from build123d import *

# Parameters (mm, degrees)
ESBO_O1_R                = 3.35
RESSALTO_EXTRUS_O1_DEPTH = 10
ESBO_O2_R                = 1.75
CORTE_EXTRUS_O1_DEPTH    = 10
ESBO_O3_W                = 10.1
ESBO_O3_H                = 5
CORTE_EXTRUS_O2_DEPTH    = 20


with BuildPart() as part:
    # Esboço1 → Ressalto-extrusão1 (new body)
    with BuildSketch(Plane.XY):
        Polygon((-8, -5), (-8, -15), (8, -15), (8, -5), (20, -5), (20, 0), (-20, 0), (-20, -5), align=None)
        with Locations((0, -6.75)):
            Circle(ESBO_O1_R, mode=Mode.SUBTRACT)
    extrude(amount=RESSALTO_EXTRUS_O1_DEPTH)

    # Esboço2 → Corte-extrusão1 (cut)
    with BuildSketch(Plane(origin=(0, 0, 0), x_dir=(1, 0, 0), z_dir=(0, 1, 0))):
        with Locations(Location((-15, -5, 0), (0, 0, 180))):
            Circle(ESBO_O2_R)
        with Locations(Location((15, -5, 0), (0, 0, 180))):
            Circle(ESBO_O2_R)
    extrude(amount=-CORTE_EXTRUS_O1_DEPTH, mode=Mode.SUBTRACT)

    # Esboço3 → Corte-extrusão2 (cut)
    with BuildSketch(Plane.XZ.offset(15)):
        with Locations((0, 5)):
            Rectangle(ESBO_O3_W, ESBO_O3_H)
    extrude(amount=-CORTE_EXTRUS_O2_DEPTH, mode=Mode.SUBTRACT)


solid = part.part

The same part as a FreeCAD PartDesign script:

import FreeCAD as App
import Part
import Sketcher

V = App.Vector


def add_polygon(sketch, points):
    """Adds a closed chain of lines whose ends are joined by coincident constraints."""
    first, n = sketch.GeometryCount, len(points)
    for a, b in zip(points, points[1:] + points[:1]):
        sketch.addGeometry(Part.LineSegment(App.Vector(*a, 0), App.Vector(*b, 0)), False)
    for i in range(n):
        sketch.addConstraint(Sketcher.Constraint("Coincident", first + i, 2, first + (i + 1) % n, 1))

doc = App.newDocument("Part")
body = doc.addObject("PartDesign::Body", "Body")

sketch1 = body.newObject("Sketcher::SketchObject", "Sketch")
sketch1.AttachmentSupport = (doc.getObject("XY_Plane"), [""])
sketch1.MapMode = "FlatFace"
add_polygon(sketch1, [(-8, -5), (-8, -15), (8, -15), (8, -5), (20, -5), (20, 0), (-20, 0), (-20, -5)])
sketch1.addGeometry(Part.Circle(V(0, -6.8, 0), V(0, 0, 1), 3.4), False)
sketch1.addConstraint([
    Sketcher.Constraint("Vertical", 0),
    Sketcher.Constraint("Horizontal", 1),
    Sketcher.Constraint("Vertical", 2),
    Sketcher.Constraint("Horizontal", 3),
    Sketcher.Constraint("Vertical", 4),
    Sketcher.Constraint("Horizontal", 5),
    Sketcher.Constraint("Vertical", 6),
    Sketcher.Constraint("Horizontal", 7),
    Sketcher.Constraint("Symmetric", 4, 2, 5, 2, -1, 1),
    Sketcher.Constraint("Symmetric", 2, 2, 7, 2, -2),
    Sketcher.Constraint("PointOnObject", 8, 3, -2),
    Sketcher.Constraint("Diameter", 8, 6.7),
    Sketcher.Constraint("DistanceX", 1, 1, 1, 2, 16.0),
    Sketcher.Constraint("DistanceX", 3, 1, 3, 2, 12.0),
    Sketcher.Constraint("DistanceY", 0, 2, 0, 1, 10.0),
    Sketcher.Constraint("DistanceY", 4, 1, 4, 2, 5.0),
    Sketcher.Constraint("DistanceY", 8, 3, -1, 1, 6.75),
])
pad1 = body.newObject("PartDesign::Pad", "Pad")
pad1.Profile = sketch1
pad1.Length = 10

sketch2 = body.newObject("Sketcher::SketchObject", "Sketch001")
sketch2.AttachmentSupport = (doc.getObject("XZ_Plane"), [""])
sketch2.MapMode = "FlatFace"
sketch2.addGeometry([
    Part.Circle(V(-15, 5, 0), V(0, 0, 1), 1.8),
    Part.Circle(V(15, 5, 0), V(0, 0, 1), 1.8),
], False)
sketch2.addConstraint([
    Sketcher.Constraint("Equal", 0, 1),
    Sketcher.Constraint("Symmetric", 0, 3, 1, 3, -2),
    Sketcher.Constraint("Diameter", 0, 3.5),
    Sketcher.Constraint("DistanceX", 0, 3, -1, 1, 15.0),
    Sketcher.Constraint("DistanceY", -1, 1, 0, 3, 5.0),
])
pocket1 = body.newObject("PartDesign::Pocket", "Pocket")
pocket1.Profile = sketch2
pocket1.Length = 10
pocket1.Reversed = True

sketch3 = body.newObject("Sketcher::SketchObject", "Sketch002")
sketch3.AttachmentSupport = (doc.getObject("XZ_Plane"), [""])
sketch3.MapMode = "FlatFace"
sketch3.AttachmentOffset = App.Placement(V(0, 0, 15), App.Rotation())
add_polygon(sketch3, [(-5, 8), (-5, 2), (5, 2), (5, 8)])
sketch3.addConstraint([
    Sketcher.Constraint("Vertical", 0),
    Sketcher.Constraint("Horizontal", 1),
    Sketcher.Constraint("Vertical", 2),
    Sketcher.Constraint("Horizontal", 3),
    Sketcher.Constraint("DistanceY", 0, 2, 0, 1, 5.0),
    Sketcher.Constraint("DistanceX", 1, 1, 1, 2, 10.1),
    Sketcher.Constraint("DistanceY", -1, 1, 0, 2, 2.5),
    Sketcher.Constraint("DistanceX", 0, 2, -1, 1, 5.05),
])
pocket2 = body.newObject("PartDesign::Pocket", "Pocket001")
pocket2.Profile = sketch3
pocket2.Length = 20

doc.recompute()
